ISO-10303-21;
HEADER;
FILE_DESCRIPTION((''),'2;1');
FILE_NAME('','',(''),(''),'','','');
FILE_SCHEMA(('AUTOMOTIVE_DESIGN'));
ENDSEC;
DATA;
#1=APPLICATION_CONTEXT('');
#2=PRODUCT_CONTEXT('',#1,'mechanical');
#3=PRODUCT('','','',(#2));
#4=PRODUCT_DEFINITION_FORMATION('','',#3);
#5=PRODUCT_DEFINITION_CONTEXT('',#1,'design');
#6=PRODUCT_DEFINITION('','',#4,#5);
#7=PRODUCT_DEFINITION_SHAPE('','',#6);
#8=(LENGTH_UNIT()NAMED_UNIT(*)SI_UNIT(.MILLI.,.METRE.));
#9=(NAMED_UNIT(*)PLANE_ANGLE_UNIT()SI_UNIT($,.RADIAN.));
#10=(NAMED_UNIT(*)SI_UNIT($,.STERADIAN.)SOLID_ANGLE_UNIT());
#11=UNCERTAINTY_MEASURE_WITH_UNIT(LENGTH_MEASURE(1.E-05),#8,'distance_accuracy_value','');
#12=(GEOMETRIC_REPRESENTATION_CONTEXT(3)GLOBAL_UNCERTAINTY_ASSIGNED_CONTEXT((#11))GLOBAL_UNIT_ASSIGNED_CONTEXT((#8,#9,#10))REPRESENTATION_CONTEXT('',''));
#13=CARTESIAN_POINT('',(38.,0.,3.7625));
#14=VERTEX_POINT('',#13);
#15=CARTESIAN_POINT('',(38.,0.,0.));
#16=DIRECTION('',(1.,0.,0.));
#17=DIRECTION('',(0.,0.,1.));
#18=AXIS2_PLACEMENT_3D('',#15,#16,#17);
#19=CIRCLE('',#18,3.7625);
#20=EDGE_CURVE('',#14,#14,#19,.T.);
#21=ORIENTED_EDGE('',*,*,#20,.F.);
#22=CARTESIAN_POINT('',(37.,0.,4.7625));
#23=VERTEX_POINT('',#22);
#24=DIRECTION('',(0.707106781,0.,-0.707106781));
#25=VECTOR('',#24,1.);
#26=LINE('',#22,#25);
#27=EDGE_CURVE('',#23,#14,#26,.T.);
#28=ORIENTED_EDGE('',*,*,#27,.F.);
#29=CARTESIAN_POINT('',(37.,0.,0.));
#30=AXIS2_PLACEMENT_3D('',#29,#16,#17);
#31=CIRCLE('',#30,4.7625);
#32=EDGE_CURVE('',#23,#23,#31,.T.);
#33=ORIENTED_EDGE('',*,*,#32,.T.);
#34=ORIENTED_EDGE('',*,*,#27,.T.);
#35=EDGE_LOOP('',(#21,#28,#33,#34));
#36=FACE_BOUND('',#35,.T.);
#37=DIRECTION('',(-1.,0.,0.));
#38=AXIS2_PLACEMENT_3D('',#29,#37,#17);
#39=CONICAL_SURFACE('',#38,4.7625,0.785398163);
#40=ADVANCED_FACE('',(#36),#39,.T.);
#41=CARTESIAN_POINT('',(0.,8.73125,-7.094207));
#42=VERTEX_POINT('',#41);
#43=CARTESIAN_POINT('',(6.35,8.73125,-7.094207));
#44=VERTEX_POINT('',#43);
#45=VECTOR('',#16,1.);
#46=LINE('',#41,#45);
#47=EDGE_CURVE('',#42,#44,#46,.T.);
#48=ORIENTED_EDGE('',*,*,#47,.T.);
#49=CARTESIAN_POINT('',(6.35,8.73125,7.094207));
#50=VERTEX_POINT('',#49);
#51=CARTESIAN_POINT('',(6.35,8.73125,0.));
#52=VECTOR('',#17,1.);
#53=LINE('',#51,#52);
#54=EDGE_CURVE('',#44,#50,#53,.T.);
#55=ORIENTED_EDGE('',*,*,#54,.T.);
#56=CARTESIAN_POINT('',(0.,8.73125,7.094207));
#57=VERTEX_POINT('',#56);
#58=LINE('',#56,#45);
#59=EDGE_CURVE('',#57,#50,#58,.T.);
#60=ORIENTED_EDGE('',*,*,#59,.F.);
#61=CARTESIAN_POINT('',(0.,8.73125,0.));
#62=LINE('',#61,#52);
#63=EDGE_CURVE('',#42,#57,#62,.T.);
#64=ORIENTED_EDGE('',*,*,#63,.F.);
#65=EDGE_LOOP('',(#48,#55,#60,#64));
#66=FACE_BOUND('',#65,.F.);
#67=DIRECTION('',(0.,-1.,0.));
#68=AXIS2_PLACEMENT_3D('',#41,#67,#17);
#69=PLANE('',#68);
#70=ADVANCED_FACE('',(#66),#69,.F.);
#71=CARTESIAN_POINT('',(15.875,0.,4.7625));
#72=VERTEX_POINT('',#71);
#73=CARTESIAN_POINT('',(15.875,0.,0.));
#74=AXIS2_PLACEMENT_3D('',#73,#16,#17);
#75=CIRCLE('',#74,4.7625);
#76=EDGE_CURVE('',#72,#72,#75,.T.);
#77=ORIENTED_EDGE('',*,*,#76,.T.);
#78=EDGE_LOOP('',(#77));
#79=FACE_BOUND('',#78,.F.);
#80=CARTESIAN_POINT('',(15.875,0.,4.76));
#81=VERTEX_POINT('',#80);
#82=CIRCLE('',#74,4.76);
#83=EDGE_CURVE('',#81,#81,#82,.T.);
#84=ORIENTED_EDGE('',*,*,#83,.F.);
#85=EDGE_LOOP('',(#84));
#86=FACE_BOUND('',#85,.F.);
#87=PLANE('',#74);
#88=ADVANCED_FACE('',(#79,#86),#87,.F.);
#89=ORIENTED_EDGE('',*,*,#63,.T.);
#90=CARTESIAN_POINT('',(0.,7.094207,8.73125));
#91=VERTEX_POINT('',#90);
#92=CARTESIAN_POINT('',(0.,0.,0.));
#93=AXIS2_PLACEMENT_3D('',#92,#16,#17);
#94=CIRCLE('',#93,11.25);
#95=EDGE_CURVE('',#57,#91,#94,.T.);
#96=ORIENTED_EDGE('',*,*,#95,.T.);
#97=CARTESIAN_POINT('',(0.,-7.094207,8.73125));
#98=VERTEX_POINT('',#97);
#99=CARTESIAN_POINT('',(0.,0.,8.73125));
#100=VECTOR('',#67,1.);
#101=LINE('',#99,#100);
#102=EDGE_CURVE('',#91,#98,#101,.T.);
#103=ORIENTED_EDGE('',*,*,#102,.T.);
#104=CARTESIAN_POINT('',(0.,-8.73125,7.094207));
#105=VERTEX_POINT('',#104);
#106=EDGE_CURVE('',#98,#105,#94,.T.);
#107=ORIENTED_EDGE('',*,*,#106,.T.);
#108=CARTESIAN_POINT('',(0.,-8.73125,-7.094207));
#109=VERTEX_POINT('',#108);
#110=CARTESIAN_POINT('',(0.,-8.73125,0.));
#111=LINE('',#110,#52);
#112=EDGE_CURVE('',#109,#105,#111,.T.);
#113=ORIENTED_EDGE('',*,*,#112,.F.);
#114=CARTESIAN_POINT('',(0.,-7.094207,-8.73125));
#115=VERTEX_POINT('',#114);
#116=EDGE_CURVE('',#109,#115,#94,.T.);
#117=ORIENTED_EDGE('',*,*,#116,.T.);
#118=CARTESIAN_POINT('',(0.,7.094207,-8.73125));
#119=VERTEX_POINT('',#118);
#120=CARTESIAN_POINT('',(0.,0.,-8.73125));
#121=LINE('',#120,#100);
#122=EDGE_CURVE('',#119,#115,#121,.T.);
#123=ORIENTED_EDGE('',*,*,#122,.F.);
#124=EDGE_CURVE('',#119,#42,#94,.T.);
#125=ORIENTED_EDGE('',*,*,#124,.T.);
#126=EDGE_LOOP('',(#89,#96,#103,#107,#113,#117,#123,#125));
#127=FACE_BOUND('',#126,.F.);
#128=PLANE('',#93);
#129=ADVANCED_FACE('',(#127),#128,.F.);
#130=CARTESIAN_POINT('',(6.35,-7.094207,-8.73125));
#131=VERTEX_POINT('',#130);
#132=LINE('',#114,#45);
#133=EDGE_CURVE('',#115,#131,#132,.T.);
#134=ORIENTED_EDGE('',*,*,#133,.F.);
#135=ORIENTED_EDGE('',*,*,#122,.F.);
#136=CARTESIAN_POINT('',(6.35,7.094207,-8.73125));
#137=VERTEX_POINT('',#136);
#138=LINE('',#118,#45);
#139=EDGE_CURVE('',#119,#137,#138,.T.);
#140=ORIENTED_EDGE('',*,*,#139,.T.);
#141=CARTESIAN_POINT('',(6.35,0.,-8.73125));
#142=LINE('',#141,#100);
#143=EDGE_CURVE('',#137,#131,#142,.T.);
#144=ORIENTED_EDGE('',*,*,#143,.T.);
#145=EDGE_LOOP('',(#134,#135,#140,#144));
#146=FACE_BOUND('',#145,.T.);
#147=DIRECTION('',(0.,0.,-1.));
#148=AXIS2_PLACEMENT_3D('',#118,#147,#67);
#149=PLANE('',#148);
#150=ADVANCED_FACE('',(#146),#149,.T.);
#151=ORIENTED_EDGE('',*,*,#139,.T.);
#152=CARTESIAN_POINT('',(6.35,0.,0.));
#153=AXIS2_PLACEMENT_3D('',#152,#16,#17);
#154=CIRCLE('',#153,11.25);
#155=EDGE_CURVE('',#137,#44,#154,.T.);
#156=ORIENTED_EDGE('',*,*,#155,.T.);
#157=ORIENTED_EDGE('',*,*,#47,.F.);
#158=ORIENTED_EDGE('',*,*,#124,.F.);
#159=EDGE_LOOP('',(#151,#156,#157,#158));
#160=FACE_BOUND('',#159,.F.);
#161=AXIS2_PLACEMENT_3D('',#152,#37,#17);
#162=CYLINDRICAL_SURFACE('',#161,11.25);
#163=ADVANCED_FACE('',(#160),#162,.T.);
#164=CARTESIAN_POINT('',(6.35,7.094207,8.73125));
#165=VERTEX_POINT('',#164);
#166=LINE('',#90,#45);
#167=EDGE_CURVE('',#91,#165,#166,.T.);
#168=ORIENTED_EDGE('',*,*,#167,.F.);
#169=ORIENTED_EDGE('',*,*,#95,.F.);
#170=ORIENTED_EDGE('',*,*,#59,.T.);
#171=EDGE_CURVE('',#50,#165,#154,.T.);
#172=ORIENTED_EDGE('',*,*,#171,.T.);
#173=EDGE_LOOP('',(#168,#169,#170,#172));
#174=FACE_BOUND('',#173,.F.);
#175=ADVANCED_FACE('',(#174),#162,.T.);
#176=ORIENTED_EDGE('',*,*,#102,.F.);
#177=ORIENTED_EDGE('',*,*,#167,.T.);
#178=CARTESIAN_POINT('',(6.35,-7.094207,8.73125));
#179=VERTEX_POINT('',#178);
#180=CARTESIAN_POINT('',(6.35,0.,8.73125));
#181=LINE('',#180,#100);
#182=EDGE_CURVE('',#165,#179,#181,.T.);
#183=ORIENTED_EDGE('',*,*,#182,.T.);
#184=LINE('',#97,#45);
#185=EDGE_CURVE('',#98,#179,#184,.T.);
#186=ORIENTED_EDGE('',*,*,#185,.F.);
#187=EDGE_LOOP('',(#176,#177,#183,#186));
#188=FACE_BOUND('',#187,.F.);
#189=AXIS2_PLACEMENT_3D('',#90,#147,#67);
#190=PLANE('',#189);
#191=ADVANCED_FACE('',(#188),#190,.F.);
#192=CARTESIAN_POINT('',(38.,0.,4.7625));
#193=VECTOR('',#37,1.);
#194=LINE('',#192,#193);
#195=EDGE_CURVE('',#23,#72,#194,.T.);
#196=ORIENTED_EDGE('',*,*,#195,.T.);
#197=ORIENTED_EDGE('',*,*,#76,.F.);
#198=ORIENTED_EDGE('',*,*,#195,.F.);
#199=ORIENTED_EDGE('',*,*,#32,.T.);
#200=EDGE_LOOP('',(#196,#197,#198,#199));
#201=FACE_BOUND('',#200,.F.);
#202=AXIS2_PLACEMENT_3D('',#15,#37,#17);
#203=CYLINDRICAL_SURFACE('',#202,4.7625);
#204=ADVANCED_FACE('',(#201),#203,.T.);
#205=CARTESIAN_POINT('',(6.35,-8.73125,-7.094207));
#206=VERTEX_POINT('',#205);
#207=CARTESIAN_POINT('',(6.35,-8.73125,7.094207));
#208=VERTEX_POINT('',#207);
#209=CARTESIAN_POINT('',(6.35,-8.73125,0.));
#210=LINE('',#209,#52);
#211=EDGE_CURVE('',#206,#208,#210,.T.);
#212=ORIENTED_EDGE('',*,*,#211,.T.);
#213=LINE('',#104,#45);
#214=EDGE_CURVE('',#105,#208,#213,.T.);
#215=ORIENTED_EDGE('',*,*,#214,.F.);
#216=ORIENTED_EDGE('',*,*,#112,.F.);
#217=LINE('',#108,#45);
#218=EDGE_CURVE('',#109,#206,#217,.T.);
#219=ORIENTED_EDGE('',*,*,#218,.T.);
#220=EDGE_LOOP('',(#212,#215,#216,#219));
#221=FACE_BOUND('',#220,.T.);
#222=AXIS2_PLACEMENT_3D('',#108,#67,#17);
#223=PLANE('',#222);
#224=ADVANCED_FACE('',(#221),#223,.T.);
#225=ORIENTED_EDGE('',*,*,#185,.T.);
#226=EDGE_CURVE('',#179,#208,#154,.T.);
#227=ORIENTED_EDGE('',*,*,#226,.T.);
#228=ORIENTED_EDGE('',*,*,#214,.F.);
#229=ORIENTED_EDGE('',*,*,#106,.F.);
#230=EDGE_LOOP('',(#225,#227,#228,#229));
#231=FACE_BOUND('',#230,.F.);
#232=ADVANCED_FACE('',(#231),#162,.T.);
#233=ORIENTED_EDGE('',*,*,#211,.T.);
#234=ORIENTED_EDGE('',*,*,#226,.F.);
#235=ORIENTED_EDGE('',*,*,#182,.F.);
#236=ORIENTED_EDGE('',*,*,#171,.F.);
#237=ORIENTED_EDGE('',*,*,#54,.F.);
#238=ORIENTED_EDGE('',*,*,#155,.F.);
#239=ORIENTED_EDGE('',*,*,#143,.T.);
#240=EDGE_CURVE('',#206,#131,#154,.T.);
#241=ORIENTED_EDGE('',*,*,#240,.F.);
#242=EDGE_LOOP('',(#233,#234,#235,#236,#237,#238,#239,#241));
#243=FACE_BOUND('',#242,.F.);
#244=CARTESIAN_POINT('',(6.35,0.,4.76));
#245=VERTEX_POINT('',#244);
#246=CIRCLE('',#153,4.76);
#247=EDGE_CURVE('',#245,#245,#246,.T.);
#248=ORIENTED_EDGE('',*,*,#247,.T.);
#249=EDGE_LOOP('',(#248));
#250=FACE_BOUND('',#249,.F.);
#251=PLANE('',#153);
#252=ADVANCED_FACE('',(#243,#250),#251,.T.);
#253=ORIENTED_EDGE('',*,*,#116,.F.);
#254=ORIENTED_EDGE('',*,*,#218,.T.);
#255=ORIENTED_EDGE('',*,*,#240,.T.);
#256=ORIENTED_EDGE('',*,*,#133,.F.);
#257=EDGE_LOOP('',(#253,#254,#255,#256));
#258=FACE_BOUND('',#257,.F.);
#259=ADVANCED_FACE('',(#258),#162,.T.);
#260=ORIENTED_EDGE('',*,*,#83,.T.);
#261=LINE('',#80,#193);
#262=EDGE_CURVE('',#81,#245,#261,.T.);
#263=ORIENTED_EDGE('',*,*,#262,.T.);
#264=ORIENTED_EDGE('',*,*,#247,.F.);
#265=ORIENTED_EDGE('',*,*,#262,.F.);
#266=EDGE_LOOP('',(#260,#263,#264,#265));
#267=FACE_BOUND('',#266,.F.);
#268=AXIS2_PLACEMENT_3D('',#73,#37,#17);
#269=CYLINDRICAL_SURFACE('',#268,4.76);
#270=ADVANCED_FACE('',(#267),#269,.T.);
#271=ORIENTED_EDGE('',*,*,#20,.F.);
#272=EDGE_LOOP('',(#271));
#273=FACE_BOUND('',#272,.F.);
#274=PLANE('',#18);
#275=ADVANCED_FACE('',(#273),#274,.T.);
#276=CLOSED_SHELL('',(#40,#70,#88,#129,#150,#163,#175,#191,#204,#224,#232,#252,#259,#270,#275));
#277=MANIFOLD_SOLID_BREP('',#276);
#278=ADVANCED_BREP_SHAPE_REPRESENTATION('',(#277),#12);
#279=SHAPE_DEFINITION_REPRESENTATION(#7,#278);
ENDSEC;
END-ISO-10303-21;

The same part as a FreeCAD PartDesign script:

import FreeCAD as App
import Part
import Sketcher
from FreeCAD import Vector
Q = App.Units.Quantity


def edges_at(feature, points):
    """Names of the edges that pass closest to the given points."""
    edges = feature.Shape.Edges
    near = lambda p: min(range(len(edges)), key=lambda i: edges[i].distToShape(Part.Vertex(*p))[0])
    return sorted({f"Edge{near(p) + 1}" for p in points})

doc = App.newDocument("Part")
body = doc.addObject("PartDesign::Body", "Body")

# Sketch on XZ plane
sketch1 = body.newObject("Sketcher::SketchObject", "Sketch")
sketch1.AttachmentSupport = (doc.getObject("XZ_Plane"), [""])
sketch1.MapMode = "FlatFace"
sketch1.addGeometry(Part.LineSegment(Vector(0, 11.25, 0), Vector(0, 0, 0)), False)
sketch1.addGeometry(Part.LineSegment(Vector(0, 0, 0), Vector(38, 0, 0)), False)
sketch1.addGeometry(Part.LineSegment(Vector(38, 0, 0), Vector(38, 4.7625, 0)), False)
sketch1.addGeometry(Part.LineSegment(Vector(38, 4.7625, 0), Vector(15.875, 4.7625, 0)), False)
sketch1.addGeometry(Part.LineSegment(Vector(15.875, 4.7625, 0), Vector(15.875, 4.76, 0)), False)
sketch1.addGeometry(Part.LineSegment(Vector(15.875, 4.76, 0), Vector(6.35, 4.76, 0)), False)
sketch1.addGeometry(Part.LineSegment(Vector(6.35, 4.76, 0), Vector(6.35, 11.25, 0)), False)
sketch1.addGeometry(Part.LineSegment(Vector(6.35, 11.25, 0), Vector(0, 11.25, 0)), False)
sketch1.addConstraint(Sketcher.Constraint("Coincident", 0, 2, 1, 1))
sketch1.addConstraint(Sketcher.Constraint("Coincident", 1, 2, 2, 1))
sketch1.addConstraint(Sketcher.Constraint("Coincident", 2, 2, 3, 1))
sketch1.addConstraint(Sketcher.Constraint("Coincident", 3, 2, 4, 1))
sketch1.addConstraint(Sketcher.Constraint("Coincident", 4, 2, 5, 1))
sketch1.addConstraint(Sketcher.Constraint("Coincident", 5, 2, 6, 1))
sketch1.addConstraint(Sketcher.Constraint("Coincident", 6, 2, 7, 1))
sketch1.addConstraint(Sketcher.Constraint("Coincident", 7, 2, 0, 1))
sketch1.addConstraint(Sketcher.Constraint("Vertical", 0))
sketch1.addConstraint(Sketcher.Constraint("Horizontal", 1))
sketch1.addConstraint(Sketcher.Constraint("Vertical", 2))
sketch1.addConstraint(Sketcher.Constraint("Horizontal", 3))
sketch1.addConstraint(Sketcher.Constraint("Vertical", 4))
sketch1.addConstraint(Sketcher.Constraint("Horizontal", 5))
sketch1.addConstraint(Sketcher.Constraint("Vertical", 6))
sketch1.addConstraint(Sketcher.Constraint("Horizontal", 7))
sketch1.addConstraint(Sketcher.Constraint("Coincident", 0, 2, -1, 1))
sketch1.addConstraint(Sketcher.Constraint("DistanceX", 7, 2, 7, 1, Q("0.25 in")))
sketch1.addConstraint(Sketcher.Constraint("DistanceX", 5, 2, 5, 1, Q("0.375 in")))
sketch1.addConstraint(Sketcher.Constraint("DistanceY", 2, 1, 2, 2, Q("0.1875 in")))
sketch1.addConstraint(Sketcher.Constraint("DistanceX", 1, 1, 1, 2, 38.0))
sketch1.addConstraint(Sketcher.Constraint("DistanceY", 0, 2, 0, 1, 11.25))
sketch1.addConstraint(Sketcher.Constraint("DistanceY", 4, 2, 4, 1, 0.0025))
revolution = body.newObject("PartDesign::Revolution", "Revolution")
revolution.Profile = sketch1
revolution.ReferenceAxis = (sketch1, ["H_Axis"])
revolution.Angle = 360

# Sketch on YZ plane
sketch2 = body.newObject("Sketcher::SketchObject", "Sketch001")
sketch2.AttachmentSupport = (doc.getObject("YZ_Plane"), [""])
sketch2.MapMode = "FlatFace"
sketch2.addGeometry(Part.LineSegment(Vector(11.2, 7.1, 0), Vector(11.2, -7.1, 0)), False)
sketch2.addGeometry(Part.LineSegment(Vector(11.2, -7.1, 0), Vector(8.7, -7.1, 0)), False)
sketch2.addGeometry(Part.LineSegment(Vector(8.7, -7.1, 0), Vector(8.7, 7.1, 0)), False)
sketch2.addGeometry(Part.LineSegment(Vector(8.7, 7.1, 0), Vector(11.2, 7.1, 0)), False)
sketch2.addGeometry(Part.LineSegment(Vector(-8.7, 7.1, 0), Vector(-8.7, -7.1, 0)), False)
sketch2.addGeometry(Part.LineSegment(Vector(-8.7, -7.1, 0), Vector(-11.2, -7.1, 0)), False)
sketch2.addGeometry(Part.LineSegment(Vector(-11.2, -7.1, 0), Vector(-11.2, 7.1, 0)), False)
sketch2.addGeometry(Part.LineSegment(Vector(-11.2, 7.1, 0), Vector(-8.7, 7.1, 0)), False)
sketch2.addGeometry(Part.LineSegment(Vector(7.1, 11.2, 0), Vector(7.1, 8.7, 0)), False)
sketch2.addGeometry(Part.LineSegment(Vector(7.1, 8.7, 0), Vector(-7.1, 8.7, 0)), False)
sketch2.addGeometry(Part.LineSegment(Vector(-7.1, 8.7, 0), Vector(-7.1, 11.2, 0)), False)
sketch2.addGeometry(Part.LineSegment(Vector(-7.1, 11.2, 0), Vector(7.1, 11.2, 0)), False)
sketch2.addGeometry(Part.LineSegment(Vector(7.1, -8.7, 0), Vector(7.1, -11.2, 0)), False)
sketch2.addGeometry(Part.LineSegment(Vector(7.1, -11.2, 0), Vector(-7.1, -11.2, 0)), False)
sketch2.addGeometry(Part.LineSegment(Vector(-7.1, -11.2, 0), Vector(-7.1, -8.7, 0)), False)
sketch2.addGeometry(Part.LineSegment(Vector(-7.1, -8.7, 0), Vector(7.1, -8.7, 0)), False)
sketch2.addConstraint(Sketcher.Constraint("Coincident", 0, 2, 1, 1))
sketch2.addConstraint(Sketcher.Constraint("Coincident", 1, 2, 2, 1))
sketch2.addConstraint(Sketcher.Constraint("Coincident", 2, 2, 3, 1))
sketch2.addConstraint(Sketcher.Constraint("Coincident", 3, 2, 0, 1))
sketch2.addConstraint(Sketcher.Constraint("Coincident", 4, 2, 5, 1))
sketch2.addConstraint(Sketcher.Constraint("Coincident", 5, 2, 6, 1))
sketch2.addConstraint(Sketcher.Constraint("Coincident", 6, 2, 7, 1))
sketch2.addConstraint(Sketcher.Constraint("Coincident", 7, 2, 4, 1))
sketch2.addConstraint(Sketcher.Constraint("Coincident", 8, 2, 9, 1))
sketch2.addConstraint(Sketcher.Constraint("Coincident", 9, 2, 10, 1))
sketch2.addConstraint(Sketcher.Constraint("Coincident", 10, 2, 11, 1))
sketch2.addConstraint(Sketcher.Constraint("Coincident", 11, 2, 8, 1))
sketch2.addConstraint(Sketcher.Constraint("Coincident", 12, 2, 13, 1))
sketch2.addConstraint(Sketcher.Constraint("Coincident", 13, 2, 14, 1))
sketch2.addConstraint(Sketcher.Constraint("Coincident", 14, 2, 15, 1))
sketch2.addConstraint(Sketcher.Constraint("Coincident", 15, 2, 12, 1))
sketch2.addConstraint(Sketcher.Constraint("Vertical", 0))
sketch2.addConstraint(Sketcher.Constraint("Horizontal", 1))
sketch2.addConstraint(Sketcher.Constraint("Vertical", 2))
sketch2.addConstraint(Sketcher.Constraint("Horizontal", 3))
sketch2.addConstraint(Sketcher.Constraint("Vertical", 4))
sketch2.addConstraint(Sketcher.Constraint("Horizontal", 5))
sketch2.addConstraint(Sketcher.Constraint("Vertical", 6))
sketch2.addConstraint(Sketcher.Constraint("Horizontal", 7))
sketch2.addConstraint(Sketcher.Constraint("Vertical", 8))
sketch2.addConstraint(Sketcher.Constraint("Horizontal", 9))
sketch2.addConstraint(Sketcher.Constraint("Vertical", 10))
sketch2.addConstraint(Sketcher.Constraint("Horizontal", 11))
sketch2.addConstraint(Sketcher.Constraint("Vertical", 12))
sketch2.addConstraint(Sketcher.Constraint("Horizontal", 13))
sketch2.addConstraint(Sketcher.Constraint("Vertical", 14))
sketch2.addConstraint(Sketcher.Constraint("Horizontal", 15))
sketch2.addConstraint(Sketcher.Constraint("Symmetric", 2, 2, 4, 2, -1, 1))
sketch2.addConstraint(Sketcher.Constraint("Symmetric", 0, 2, 6, 2, -1, 1))
sketch2.addConstraint(Sketcher.Constraint("Symmetric", 10, 2, 12, 2, -1, 1))
sketch2.addConstraint(Sketcher.Constraint("Symmetric", 8, 2, 14, 2, -1, 1))
sketch2.addConstraint(Sketcher.Constraint("Horizontal", 1, 2, 4, 2))
sketch2.addConstraint(Sketcher.Constraint("Vertical", 11, 2, 12, 2))
sketch2.addConstraint(Sketcher.Constraint("Equal", 15, 0))
sketch2.addConstraint(Sketcher.Constraint("Equal", 7, 8))
sketch2.addConstraint(Sketcher.Constraint("DistanceX", -1, 1, 1, 2, Q("0.34375 in")))
sketch2.addConstraint(Sketcher.Constraint("DistanceY", -1, 1, 8, 2, Q("0.34375 in")))
sketch2.addConstraint(Sketcher.Constraint("DistanceX", 1, 2, 1, 1, 2.51875))
sketch2.addConstraint(Sketcher.Constraint("DistanceX", 9, 2, 9, 1, 14.188414))
pocket1 = body.newObject("PartDesign::Pocket", "Pocket")
pocket1.Profile = sketch2
pocket1.Type = "ThroughAll"
pocket1.Reversed = True
doc.recompute()

chamfer = body.newObject("PartDesign::Chamfer", "Chamfer")
chamfer.Base = (pocket1, edges_at(pocket1, [(38, 0, -4.763)]))
chamfer.Size = 1

doc.recompute()
